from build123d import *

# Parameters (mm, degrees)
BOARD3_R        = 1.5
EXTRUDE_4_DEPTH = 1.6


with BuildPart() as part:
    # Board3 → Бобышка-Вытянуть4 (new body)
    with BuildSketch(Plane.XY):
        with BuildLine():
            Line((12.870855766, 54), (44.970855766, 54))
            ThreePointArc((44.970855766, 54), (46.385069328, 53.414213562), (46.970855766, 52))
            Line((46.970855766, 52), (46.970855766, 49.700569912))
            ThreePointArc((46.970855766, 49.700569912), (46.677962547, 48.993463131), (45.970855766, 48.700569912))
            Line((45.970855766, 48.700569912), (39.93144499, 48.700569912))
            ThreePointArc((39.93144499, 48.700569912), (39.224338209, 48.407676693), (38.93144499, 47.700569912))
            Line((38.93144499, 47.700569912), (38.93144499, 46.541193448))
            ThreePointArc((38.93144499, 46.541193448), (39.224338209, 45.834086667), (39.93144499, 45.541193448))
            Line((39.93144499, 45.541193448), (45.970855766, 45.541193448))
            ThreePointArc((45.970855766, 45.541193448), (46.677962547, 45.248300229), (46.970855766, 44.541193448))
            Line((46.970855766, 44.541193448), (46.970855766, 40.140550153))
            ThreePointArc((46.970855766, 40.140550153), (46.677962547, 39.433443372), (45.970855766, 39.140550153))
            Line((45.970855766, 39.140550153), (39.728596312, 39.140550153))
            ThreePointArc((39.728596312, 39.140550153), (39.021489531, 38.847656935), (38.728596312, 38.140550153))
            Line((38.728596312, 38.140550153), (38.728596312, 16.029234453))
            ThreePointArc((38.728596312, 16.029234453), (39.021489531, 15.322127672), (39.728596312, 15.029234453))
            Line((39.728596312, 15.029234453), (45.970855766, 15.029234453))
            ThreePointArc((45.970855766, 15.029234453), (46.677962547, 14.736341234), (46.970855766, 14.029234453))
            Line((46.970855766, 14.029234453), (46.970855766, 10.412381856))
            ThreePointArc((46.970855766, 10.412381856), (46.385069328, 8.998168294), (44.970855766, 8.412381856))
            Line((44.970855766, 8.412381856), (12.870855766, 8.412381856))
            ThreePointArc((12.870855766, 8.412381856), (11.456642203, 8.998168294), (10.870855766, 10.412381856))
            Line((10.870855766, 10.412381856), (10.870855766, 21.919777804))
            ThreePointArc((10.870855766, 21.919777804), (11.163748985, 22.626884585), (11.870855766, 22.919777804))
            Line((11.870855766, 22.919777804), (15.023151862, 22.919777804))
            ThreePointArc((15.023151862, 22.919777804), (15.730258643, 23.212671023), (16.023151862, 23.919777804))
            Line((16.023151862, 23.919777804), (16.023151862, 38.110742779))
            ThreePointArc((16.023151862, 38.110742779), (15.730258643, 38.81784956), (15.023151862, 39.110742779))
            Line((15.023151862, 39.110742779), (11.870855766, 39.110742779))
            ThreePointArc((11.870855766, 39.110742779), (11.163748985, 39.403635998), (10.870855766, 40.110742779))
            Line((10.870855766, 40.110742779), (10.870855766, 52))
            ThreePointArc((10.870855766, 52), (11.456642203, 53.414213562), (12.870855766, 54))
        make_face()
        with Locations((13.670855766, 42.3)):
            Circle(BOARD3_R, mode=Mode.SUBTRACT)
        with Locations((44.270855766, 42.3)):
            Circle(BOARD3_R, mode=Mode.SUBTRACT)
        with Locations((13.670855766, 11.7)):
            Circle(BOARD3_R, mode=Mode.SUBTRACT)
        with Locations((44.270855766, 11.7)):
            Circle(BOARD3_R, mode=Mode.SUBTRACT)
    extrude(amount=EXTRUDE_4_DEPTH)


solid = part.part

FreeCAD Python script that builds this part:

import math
import FreeCAD as App
import Part
import Sketcher

V = App.Vector
Q = App.Units.Quantity

doc = App.newDocument("Part")
body = doc.addObject("PartDesign::Body", "Body")

# Sketch on XY plane
sketch1 = body.newObject("Sketcher::SketchObject", "Sketch")
sketch1.AttachmentSupport = (doc.getObject("XY_Plane"), [""])
sketch1.MapMode = "FlatFace"
sketch1.addGeometry(Part.LineSegment(V(45, 54, 0), V(12.9, 54, 0)), False)
sketch1.addGeometry(Part.ArcOfCircle(Part.Circle(V(12.9, 52, 0), V(0, 0, 1), 2), math.radians(90), math.radians(180)), False)
sketch1.addGeometry(Part.LineSegment(V(10.9, 52, 0), V(10.9, 40.1, 0)), False)
sketch1.addGeometry(Part.ArcOfCircle(Part.Circle(V(11.9, 40.1, 0), V(0, 0, 1), 1), math.radians(-180), math.radians(-90)), False)
sketch1.addGeometry(Part.LineSegment(V(11.9, 39.1, 0), V(15, 39.1, 0)), False)
sketch1.addGeometry(Part.ArcOfCircle(Part.Circle(V(15, 38.1, 0), V(0, 0, 1), 1), math.radians(0), math.radians(90)), False)
sketch1.addGeometry(Part.LineSegment(V(16, 38.1, 0), V(16, 23.9, 0)), False)
sketch1.addGeometry(Part.ArcOfCircle(Part.Circle(V(15, 23.9, 0), V(0, 0, 1), 1), math.radians(-90), math.radians(0)), False)
sketch1.addGeometry(Part.LineSegment(V(15, 22.9, 0), V(11.9, 22.9, 0)), False)
sketch1.addGeometry(Part.ArcOfCircle(Part.Circle(V(11.9, 21.9, 0), V(0, 0, 1), 1), math.radians(90), math.radians(180)), False)
sketch1.addGeometry(Part.LineSegment(V(10.9, 21.9, 0), V(10.9, 10.4, 0)), False)
sketch1.addGeometry(Part.ArcOfCircle(Part.Circle(V(12.9, 10.4, 0), V(0, 0, 1), 2), math.radians(180), math.radians(270)), False)
sketch1.addGeometry(Part.LineSegment(V(12.9, 8.4, 0), V(45, 8.4, 0)), False)
sketch1.addGeometry(Part.ArcOfCircle(Part.Circle(V(45, 10.4, 0), V(0, 0, 1), 2), math.radians(-90), math.radians(0)), False)
sketch1.addGeometry(Part.LineSegment(V(47, 10.4, 0), V(47, 14, 0)), False)
sketch1.addGeometry(Part.ArcOfCircle(Part.Circle(V(46, 14, 0), V(0, 0, 1), 1), math.radians(0), math.radians(90)), False)
sketch1.addGeometry(Part.LineSegment(V(46, 15, 0), V(39.7, 15, 0)), False)
sketch1.addGeometry(Part.ArcOfCircle(Part.Circle(V(39.7, 16, 0), V(0, 0, 1), 1), math.radians(-180), math.radians(-90)), False)
sketch1.addGeometry(Part.LineSegment(V(38.7, 16, 0), V(38.7, 38.1, 0)), False)
sketch1.addGeometry(Part.ArcOfCircle(Part.Circle(V(39.7, 38.1, 0), V(0, 0, 1), 1), math.radians(90), math.radians(180)), False)
sketch1.addGeometry(Part.LineSegment(V(39.7, 39.1, 0), V(46, 39.1, 0)), False)
sketch1.addGeometry(Part.ArcOfCircle(Part.Circle(V(46, 40.1, 0), V(0, 0, 1), 1), math.radians(-90), math.radians(0)), False)
sketch1.addGeometry(Part.LineSegment(V(47, 40.1, 0), V(47, 44.5, 0)), False)
sketch1.addGeometry(Part.ArcOfCircle(Part.Circle(V(46, 44.5, 0), V(0, 0, 1), 1), math.radians(0), math.radians(90)), False)
sketch1.addGeometry(Part.LineSegment(V(46, 45.5, 0), V(39.9, 45.5, 0)), False)
sketch1.addGeometry(Part.ArcOfCircle(Part.Circle(V(39.9, 46.5, 0), V(0, 0, 1), 1), math.radians(-180), math.radians(-90)), False)
sketch1.addGeometry(Part.LineSegment(V(38.9, 46.5, 0), V(38.9, 47.7, 0)), False)
sketch1.addGeometry(Part.ArcOfCircle(Part.Circle(V(39.9, 47.7, 0), V(0, 0, 1), 1), math.radians(90), math.radians(180)), False)
sketch1.addGeometry(Part.LineSegment(V(39.9, 48.7, 0), V(46, 48.7, 0)), False)
sketch1.addGeometry(Part.ArcOfCircle(Part.Circle(V(46, 49.7, 0), V(0, 0, 1), 1), math.radians(-90), math.radians(0)), False)
sketch1.addGeometry(Part.LineSegment(V(47, 49.7, 0), V(47, 52, 0)), False)
sketch1.addGeometry(Part.ArcOfCircle(Part.Circle(V(45, 52, 0), V(0, 0, 1), 2), math.radians(0), math.radians(90)), False)
sketch1.addGeometry(Part.Circle(V(44.3, 11.7, 0), V(0, 0, 1), 1.5), False)
sketch1.addGeometry(Part.Circle(V(13.7, 11.7, 0), V(0, 0, 1), 1.5), False)
sketch1.addGeometry(Part.Circle(V(44.3, 42.3, 0), V(0, 0, 1), 1.5), False)
sketch1.addGeometry(Part.Circle(V(13.7, 42.3, 0), V(0, 0, 1), 1.5), False)
sketch1.addConstraint(Sketcher.Constraint("Tangent", 0, 2, 1, 1))
sketch1.addConstraint(Sketcher.Constraint("Tangent", 1, 2, 2, 1))
sketch1.addConstraint(Sketcher.Constraint("Tangent", 2, 2, 3, 1))
sketch1.addConstraint(Sketcher.Constraint("Tangent", 3, 2, 4, 1))
sketch1.addConstraint(Sketcher.Constraint("Tangent", 4, 2, 5, 2))
sketch1.addConstraint(Sketcher.Constraint("Tangent", 5, 1, 6, 1))
sketch1.addConstraint(Sketcher.Constraint("Tangent", 6, 2, 7, 2))
sketch1.addConstraint(Sketcher.Constraint("Tangent", 7, 1, 8, 1))
sketch1.addConstraint(Sketcher.Constraint("Tangent", 8, 2, 9, 1))
sketch1.addConstraint(Sketcher.Constraint("Tangent", 9, 2, 10, 1))
sketch1.addConstraint(Sketcher.Constraint("Tangent", 10, 2, 11, 1))
sketch1.addConstraint(Sketcher.Constraint("Tangent", 11, 2, 12, 1))
sketch1.addConstraint(Sketcher.Constraint("Tangent", 12, 2, 13, 1))
sketch1.addConstraint(Sketcher.Constraint("Tangent", 13, 2, 14, 1))
sketch1.addConstraint(Sketcher.Constraint("Tangent", 14, 2, 15, 1))
sketch1.addConstraint(Sketcher.Constraint("Tangent", 15, 2, 16, 1))
sketch1.addConstraint(Sketcher.Constraint("Tangent", 16, 2, 17, 2))
sketch1.addConstraint(Sketcher.Constraint("Tangent", 17, 1, 18, 1))
sketch1.addConstraint(Sketcher.Constraint("Tangent", 18, 2, 19, 2))
sketch1.addConstraint(Sketcher.Constraint("Tangent", 19, 1, 20, 1))
sketch1.addConstraint(Sketcher.Constraint("Tangent", 20, 2, 21, 1))
sketch1.addConstraint(Sketcher.Constraint("Tangent", 21, 2, 22, 1))
sketch1.addConstraint(Sketcher.Constraint("Tangent", 22, 2, 23, 1))
sketch1.addConstraint(Sketcher.Constraint("Tangent", 23, 2, 24, 1))
sketch1.addConstraint(Sketcher.Constraint("Tangent", 24, 2, 25, 2))
sketch1.addConstraint(Sketcher.Constraint("Tangent", 25, 1, 26, 1))
sketch1.addConstraint(Sketcher.Constraint("Tangent", 26, 2, 27, 2))
sketch1.addConstraint(Sketcher.Constraint("Tangent", 27, 1, 28, 1))
sketch1.addConstraint(Sketcher.Constraint("Tangent", 28, 2, 29, 1))
sketch1.addConstraint(Sketcher.Constraint("Tangent", 29, 2, 30, 1))
sketch1.addConstraint(Sketcher.Constraint("Tangent", 30, 2, 31, 1))
sketch1.addConstraint(Sketcher.Constraint("Tangent", 31, 2, 0, 1))
sketch1.addConstraint(Sketcher.Constraint("Horizontal", 0))
sketch1.addConstraint(Sketcher.Constraint("Vertical", 2))
sketch1.addConstraint(Sketcher.Constraint("Horizontal", 4))
sketch1.addConstraint(Sketcher.Constraint("Vertical", 6))
sketch1.addConstraint(Sketcher.Constraint("Horizontal", 8))
sketch1.addConstraint(Sketcher.Constraint("Vertical", 10))
sketch1.addConstraint(Sketcher.Constraint("Horizontal", 12))
sketch1.addConstraint(Sketcher.Constraint("Vertical", 14))
sketch1.addConstraint(Sketcher.Constraint("Horizontal", 16))
sketch1.addConstraint(Sketcher.Constraint("Vertical", 18))
sketch1.addConstraint(Sketcher.Constraint("Horizontal", 20))
sketch1.addConstraint(Sketcher.Constraint("Vertical", 22))
sketch1.addConstraint(Sketcher.Constraint("Horizontal", 24))
sketch1.addConstraint(Sketcher.Constraint("Vertical", 26))
sketch1.addConstraint(Sketcher.Constraint("Horizontal", 28))
sketch1.addConstraint(Sketcher.Constraint("Vertical", 30))
sketch1.addConstraint(Sketcher.Constraint("Equal", 3, 5))
sketch1.addConstraint(Sketcher.Constraint("Equal", 5, 7))
sketch1.addConstraint(Sketcher.Constraint("Equal", 7, 9))
sketch1.addConstraint(Sketcher.Constraint("Equal", 1, 11))
sketch1.addConstraint(Sketcher.Constraint("Equal", 11, 13))
sketch1.addConstraint(Sketcher.Constraint("Equal", 9, 15))
sketch1.addConstraint(Sketcher.Constraint("Equal", 15, 17))
sketch1.addConstraint(Sketcher.Constraint("Equal", 17, 19))
sketch1.addConstraint(Sketcher.Constraint("Equal", 19, 21))
sketch1.addConstraint(Sketcher.Constraint("Equal", 21, 23))
sketch1.addConstraint(Sketcher.Constraint("Equal", 23, 25))
sketch1.addConstraint(Sketcher.Constraint("Equal", 25, 27))
sketch1.addConstraint(Sketcher.Constraint("Equal", 27, 29))
sketch1.addConstraint(Sketcher.Constraint("Equal", 13, 31))
sketch1.addConstraint(Sketcher.Constraint("Equal", 32, 33))
sketch1.addConstraint(Sketcher.Constraint("Equal", 33, 34))
sketch1.addConstraint(Sketcher.Constraint("Equal", 34, 35))
sketch1.addConstraint(Sketcher.Constraint("Horizontal", 32, 3, 33, 3))
sketch1.addConstraint(Sketcher.Constraint("Horizontal", 34, 3, 35, 3))
sketch1.addConstraint(Sketcher.Constraint("Vertical", 3, 3, 9, 3))
sketch1.addConstraint(Sketcher.Constraint("Vertical", 15, 3, 21, 3))
sketch1.addConstraint(Sketcher.Constraint("Vertical", 23, 3, 29, 3))
sketch1.addConstraint(Sketcher.Constraint("Vertical", 32, 3, 34, 3))
sketch1.addConstraint(Sketcher.Constraint("Vertical", 33, 3, 35, 3))
sketch1.addConstraint(Sketcher.Constraint("Diameter", 32, Q("3 mm")))
sketch1.addConstraint(Sketcher.Constraint("Radius", 1, Q("2 mm")))
sketch1.addConstraint(Sketcher.Constraint("Radius", 3, Q("1 mm")))
sketch1.addConstraint(Sketcher.Constraint("DistanceX", 0, 2, 0, 1, Q("32.1 mm")))
sketch1.addConstraint(Sketcher.Constraint("DistanceY", -1, 1, 1, 3, Q("52 mm")))
sketch1.addConstraint(Sketcher.Constraint("DistanceY", -1, 1, 32, 3, Q("11.7 mm")))
sketch1.addConstraint(Sketcher.Constraint("DistanceY", -1, 1, 34, 3, Q("42.3 mm")))
sketch1.addConstraint(Sketcher.Constraint("DistanceX", 32, 3, 13, 3, Q("0.7 mm")))
sketch1.addConstraint(Sketcher.Constraint("DistanceX", 11, 3, 33, 3, Q("0.8 mm")))
sketch1.addConstraint(Sketcher.Constraint("DistanceX", 16, 2, 16, 1, Q("6.242259 mm")))
sketch1.addConstraint(Sketcher.Constraint("DistanceX", 24, 2, 24, 1, Q("6.039411 mm")))
sketch1.addConstraint(Sketcher.Constraint("DistanceY", 30, 1, 30, 2, Q("2.29943 mm")))
sketch1.addConstraint(Sketcher.Constraint("DistanceX", 4, 1, 4, 2, Q("3.152296 mm")))
sketch1.addConstraint(Sketcher.Constraint("DistanceY", 2, 2, 2, 1, Q("11.889257 mm")))
sketch1.addConstraint(Sketcher.Constraint("DistanceY", 6, 2, 6, 1, Q("14.190965 mm")))
sketch1.addConstraint(Sketcher.Constraint("DistanceY", 10, 2, 10, 1, Q("11.507396 mm")))
sketch1.addConstraint(Sketcher.Constraint("DistanceY", 14, 1, 14, 2, Q("3.616853 mm")))
sketch1.addConstraint(Sketcher.Constraint("DistanceY", 18, 1, 18, 2, Q("22.111316 mm")))
sketch1.addConstraint(Sketcher.Constraint("DistanceY", 22, 1, 22, 2, Q("4.400643 mm")))
sketch1.addConstraint(Sketcher.Constraint("DistanceX", -1, 1, 5, 3, Q("15.023152 mm")))
pad1 = body.newObject("PartDesign::Pad", "Pad")
pad1.Profile = sketch1
pad1.Length = 1.6

doc.recompute()
